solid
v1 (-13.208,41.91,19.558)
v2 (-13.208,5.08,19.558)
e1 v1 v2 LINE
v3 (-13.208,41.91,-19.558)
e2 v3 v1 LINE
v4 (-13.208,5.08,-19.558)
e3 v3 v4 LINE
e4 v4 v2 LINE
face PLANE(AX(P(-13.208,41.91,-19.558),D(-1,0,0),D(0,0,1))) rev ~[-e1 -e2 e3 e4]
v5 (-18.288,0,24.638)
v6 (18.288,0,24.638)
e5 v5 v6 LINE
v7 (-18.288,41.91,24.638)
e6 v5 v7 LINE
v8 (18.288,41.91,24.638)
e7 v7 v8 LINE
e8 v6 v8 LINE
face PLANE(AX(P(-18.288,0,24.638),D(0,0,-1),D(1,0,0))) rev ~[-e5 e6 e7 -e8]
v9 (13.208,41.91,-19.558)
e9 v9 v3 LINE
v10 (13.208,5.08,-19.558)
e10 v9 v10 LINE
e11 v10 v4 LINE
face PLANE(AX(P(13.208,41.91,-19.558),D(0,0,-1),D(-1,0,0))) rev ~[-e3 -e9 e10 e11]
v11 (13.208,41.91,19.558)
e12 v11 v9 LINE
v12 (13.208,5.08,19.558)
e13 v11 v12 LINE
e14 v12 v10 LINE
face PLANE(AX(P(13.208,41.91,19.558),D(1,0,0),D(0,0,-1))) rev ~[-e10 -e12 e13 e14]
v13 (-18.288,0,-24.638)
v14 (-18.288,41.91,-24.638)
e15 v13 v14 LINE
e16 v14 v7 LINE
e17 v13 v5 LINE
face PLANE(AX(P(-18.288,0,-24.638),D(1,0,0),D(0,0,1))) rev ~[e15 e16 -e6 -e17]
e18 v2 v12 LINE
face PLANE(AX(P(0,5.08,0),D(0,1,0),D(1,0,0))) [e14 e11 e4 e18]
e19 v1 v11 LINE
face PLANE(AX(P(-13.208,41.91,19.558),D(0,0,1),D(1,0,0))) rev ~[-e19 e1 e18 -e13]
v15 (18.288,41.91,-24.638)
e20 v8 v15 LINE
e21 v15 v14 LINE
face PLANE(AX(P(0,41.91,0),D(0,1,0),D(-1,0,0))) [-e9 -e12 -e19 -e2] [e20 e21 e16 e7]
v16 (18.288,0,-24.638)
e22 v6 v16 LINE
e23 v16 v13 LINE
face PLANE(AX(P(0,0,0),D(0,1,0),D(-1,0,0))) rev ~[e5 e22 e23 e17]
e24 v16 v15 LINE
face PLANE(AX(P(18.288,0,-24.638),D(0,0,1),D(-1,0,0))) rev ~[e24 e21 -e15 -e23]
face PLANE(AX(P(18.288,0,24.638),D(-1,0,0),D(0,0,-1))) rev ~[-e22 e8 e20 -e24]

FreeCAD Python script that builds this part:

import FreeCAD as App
import Part
import Sketcher
Q = App.Units.Quantity

doc = App.newDocument("Part")
body = doc.addObject("PartDesign::Body", "Body")

sketch1 = body.newObject("Sketcher::SketchObject", "Sketch")
sketch1.AttachmentSupport = (doc.getObject("XZ_Plane"), [""])
sketch1.MapMode = "FlatFace"
sketch1.addGeometry([
    Part.LineSegment(App.Vector(-18.288, -24.638, 0), App.Vector(-18.288, 24.638, 0)),
    Part.LineSegment(App.Vector(-18.288, 24.638, 0), App.Vector(18.288, 24.638, 0)),
    Part.LineSegment(App.Vector(18.288, 24.638, 0), App.Vector(18.288, -24.638, 0)),
    Part.LineSegment(App.Vector(18.288, -24.638, 0), App.Vector(-18.288, -24.638, 0)),
], False)
sketch1.addConstraint([
    Sketcher.Constraint("Coincident", 0, 2, 1, 1),
    Sketcher.Constraint("Coincident", 1, 2, 2, 1),
    Sketcher.Constraint("Coincident", 2, 2, 3, 1),
    Sketcher.Constraint("Coincident", 3, 2, 0, 1),
    Sketcher.Constraint("Vertical", 0),
    Sketcher.Constraint("Horizontal", 1),
    Sketcher.Constraint("Vertical", 2),
    Sketcher.Constraint("Horizontal", 3),
    Sketcher.Constraint("Symmetric", 0, 2, 2, 2, -1, 1),
    Sketcher.Constraint("DistanceX", 1, 1, 1, 2, Q("1.44 in")),
    Sketcher.Constraint("DistanceY", 0, 1, 0, 2, Q("1.94 in")),
])
pad1 = body.newObject("PartDesign::Pad", "Pad")
pad1.Profile = sketch1
pad1.Length = Q("1.65 in")
pad1.Reversed = True

sketch2 = body.newObject("Sketcher::SketchObject", "Sketch001")
sketch2.AttachmentSupport = (doc.getObject("XZ_Plane"), [""])
sketch2.MapMode = "FlatFace"
sketch2.AttachmentOffset = App.Placement(App.Vector(0, 0, -1.65 * 25.4), App.Rotation())
sketch2.addGeometry([
    Part.LineSegment(App.Vector(-13.208, -19.558, 0), App.Vector(-13.208, 19.558, 0)),
    Part.LineSegment(App.Vector(-13.208, 19.558, 0), App.Vector(13.208, 19.558, 0)),
    Part.LineSegment(App.Vector(13.208, 19.558, 0), App.Vector(13.208, -19.558, 0)),
    Part.LineSegment(App.Vector(13.208, -19.558, 0), App.Vector(-13.208, -19.558, 0)),
], False)
sketch2.addConstraint([
    Sketcher.Constraint("Coincident", 0, 2, 1, 1),
    Sketcher.Constraint("Coincident", 1, 2, 2, 1),
    Sketcher.Constraint("Coincident", 2, 2, 3, 1),
    Sketcher.Constraint("Coincident", 3, 2, 0, 1),
    Sketcher.Constraint("Vertical", 0),
    Sketcher.Constraint("Horizontal", 1),
    Sketcher.Constraint("Vertical", 2),
    Sketcher.Constraint("Horizontal", 3),
    Sketcher.Constraint("Symmetric", 0, 2, 2, 2, -1, 1),
    Sketcher.Constraint("DistanceX", 1, 1, 1, 2, Q("1.04 in")),
    Sketcher.Constraint("DistanceY", 0, 1, 0, 2, Q("1.54 in")),
])
pocket1 = body.newObject("PartDesign::Pocket", "Pocket")
pocket1.Profile = sketch2
pocket1.Length = Q("1.45 in")
pocket1.Reversed = True

doc.recompute()
